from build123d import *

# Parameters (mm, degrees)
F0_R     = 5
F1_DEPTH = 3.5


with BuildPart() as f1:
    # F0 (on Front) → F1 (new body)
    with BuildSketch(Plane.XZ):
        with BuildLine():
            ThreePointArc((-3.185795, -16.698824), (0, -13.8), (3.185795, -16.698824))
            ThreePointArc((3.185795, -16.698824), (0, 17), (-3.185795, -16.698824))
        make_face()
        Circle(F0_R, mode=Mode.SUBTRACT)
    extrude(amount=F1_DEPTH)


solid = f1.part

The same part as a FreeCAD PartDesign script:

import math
import FreeCAD as App
import Part
import Sketcher
from FreeCAD import Vector

doc = App.newDocument("Part")
body = doc.addObject("PartDesign::Body", "Body")

# Sketch on XZ plane
sketch1 = body.newObject("Sketcher::SketchObject", "Sketch")
sketch1.AttachmentSupport = (doc.getObject("XZ_Plane"), [""])
sketch1.MapMode = "FlatFace"
sketch1.addGeometry([
    Part.ArcOfCircle(Part.Circle(Vector(0, -16.999999, 0), Vector(0, 0, 1), 3.199999), math.radians(5.40052), math.radians(174.59948)),
    Part.ArcOfCircle(Part.Circle(Vector(0, 0, 0), Vector(0, 0, 1), 17), math.radians(-79.198927), math.radians(259.198927)),
    Part.Circle(Vector(0, 0, 0), Vector(0, 0, 1), 5),
], False)
sketch1.addConstraint([
    Sketcher.Constraint("Coincident", 0, 1, 1, 1),
    Sketcher.Constraint("Coincident", 1, 2, 0, 2),
    Sketcher.Constraint("Coincident", 1, 3, -1, 1),
    Sketcher.Constraint("Coincident", 2, 3, -1, 1),
    Sketcher.Constraint("PointOnObject", 0, 3, -2),
    Sketcher.Constraint("Diameter", 2, 10.0),
    Sketcher.Constraint("Radius", 1, 17.0),
    Sketcher.Constraint("Radius", 0, 3.199999),
    Sketcher.Constraint("DistanceY", 0, 3, -1, 1, 16.999999),
])
pad1 = body.newObject("PartDesign::Pad", "Pad")
pad1.Profile = sketch1
pad1.Length = 3.5

doc.recompute()
